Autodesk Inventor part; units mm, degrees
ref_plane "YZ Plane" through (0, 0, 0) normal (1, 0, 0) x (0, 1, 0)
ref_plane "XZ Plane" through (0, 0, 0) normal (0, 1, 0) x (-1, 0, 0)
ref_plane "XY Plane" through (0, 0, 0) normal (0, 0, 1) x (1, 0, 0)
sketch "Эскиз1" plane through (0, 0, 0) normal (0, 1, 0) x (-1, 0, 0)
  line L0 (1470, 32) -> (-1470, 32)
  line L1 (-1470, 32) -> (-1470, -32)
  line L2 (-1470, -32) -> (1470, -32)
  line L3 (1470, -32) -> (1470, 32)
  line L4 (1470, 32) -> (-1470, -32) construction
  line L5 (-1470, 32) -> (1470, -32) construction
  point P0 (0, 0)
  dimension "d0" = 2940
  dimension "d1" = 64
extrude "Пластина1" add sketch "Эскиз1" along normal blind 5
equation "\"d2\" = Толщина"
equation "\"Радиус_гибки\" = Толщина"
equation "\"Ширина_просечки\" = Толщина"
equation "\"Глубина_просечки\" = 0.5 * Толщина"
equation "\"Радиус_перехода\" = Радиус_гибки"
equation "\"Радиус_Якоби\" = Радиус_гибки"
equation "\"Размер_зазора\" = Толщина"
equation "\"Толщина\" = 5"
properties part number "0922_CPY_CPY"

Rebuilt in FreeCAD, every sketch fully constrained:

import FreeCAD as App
import Part
import Sketcher

doc = App.newDocument("Part")
body = doc.addObject("PartDesign::Body", "Body")

sketch1 = body.newObject("Sketcher::SketchObject", "Sketch")
sketch1.AttachmentSupport = (doc.getObject("XZ_Plane"), [""])
sketch1.MapMode = "FlatFace"
sketch1.addGeometry([
    Part.LineSegment(App.Vector(-1470, -32, 0), App.Vector(-1470, 32, 0)),
    Part.LineSegment(App.Vector(-1470, 32, 0), App.Vector(1470, 32, 0)),
    Part.LineSegment(App.Vector(1470, 32, 0), App.Vector(1470, -32, 0)),
    Part.LineSegment(App.Vector(1470, -32, 0), App.Vector(-1470, -32, 0)),
], False)
sketch1.addConstraint([
    Sketcher.Constraint("Coincident", 0, 2, 1, 1),
    Sketcher.Constraint("Coincident", 1, 2, 2, 1),
    Sketcher.Constraint("Coincident", 2, 2, 3, 1),
    Sketcher.Constraint("Coincident", 3, 2, 0, 1),
    Sketcher.Constraint("Vertical", 0),
    Sketcher.Constraint("Horizontal", 1),
    Sketcher.Constraint("Vertical", 2),
    Sketcher.Constraint("Horizontal", 3),
    Sketcher.Constraint("Symmetric", 0, 2, 2, 2, -1, 1),
    Sketcher.Constraint("DistanceX", 1, 1, 1, 2, 2940.0),
    Sketcher.Constraint("DistanceY", 0, 1, 0, 2, 64.0),
])
pad1 = body.newObject("PartDesign::Pad", "Pad")
pad1.Profile = sketch1
pad1.Length = 5
pad1.Reversed = True

doc.recompute()
